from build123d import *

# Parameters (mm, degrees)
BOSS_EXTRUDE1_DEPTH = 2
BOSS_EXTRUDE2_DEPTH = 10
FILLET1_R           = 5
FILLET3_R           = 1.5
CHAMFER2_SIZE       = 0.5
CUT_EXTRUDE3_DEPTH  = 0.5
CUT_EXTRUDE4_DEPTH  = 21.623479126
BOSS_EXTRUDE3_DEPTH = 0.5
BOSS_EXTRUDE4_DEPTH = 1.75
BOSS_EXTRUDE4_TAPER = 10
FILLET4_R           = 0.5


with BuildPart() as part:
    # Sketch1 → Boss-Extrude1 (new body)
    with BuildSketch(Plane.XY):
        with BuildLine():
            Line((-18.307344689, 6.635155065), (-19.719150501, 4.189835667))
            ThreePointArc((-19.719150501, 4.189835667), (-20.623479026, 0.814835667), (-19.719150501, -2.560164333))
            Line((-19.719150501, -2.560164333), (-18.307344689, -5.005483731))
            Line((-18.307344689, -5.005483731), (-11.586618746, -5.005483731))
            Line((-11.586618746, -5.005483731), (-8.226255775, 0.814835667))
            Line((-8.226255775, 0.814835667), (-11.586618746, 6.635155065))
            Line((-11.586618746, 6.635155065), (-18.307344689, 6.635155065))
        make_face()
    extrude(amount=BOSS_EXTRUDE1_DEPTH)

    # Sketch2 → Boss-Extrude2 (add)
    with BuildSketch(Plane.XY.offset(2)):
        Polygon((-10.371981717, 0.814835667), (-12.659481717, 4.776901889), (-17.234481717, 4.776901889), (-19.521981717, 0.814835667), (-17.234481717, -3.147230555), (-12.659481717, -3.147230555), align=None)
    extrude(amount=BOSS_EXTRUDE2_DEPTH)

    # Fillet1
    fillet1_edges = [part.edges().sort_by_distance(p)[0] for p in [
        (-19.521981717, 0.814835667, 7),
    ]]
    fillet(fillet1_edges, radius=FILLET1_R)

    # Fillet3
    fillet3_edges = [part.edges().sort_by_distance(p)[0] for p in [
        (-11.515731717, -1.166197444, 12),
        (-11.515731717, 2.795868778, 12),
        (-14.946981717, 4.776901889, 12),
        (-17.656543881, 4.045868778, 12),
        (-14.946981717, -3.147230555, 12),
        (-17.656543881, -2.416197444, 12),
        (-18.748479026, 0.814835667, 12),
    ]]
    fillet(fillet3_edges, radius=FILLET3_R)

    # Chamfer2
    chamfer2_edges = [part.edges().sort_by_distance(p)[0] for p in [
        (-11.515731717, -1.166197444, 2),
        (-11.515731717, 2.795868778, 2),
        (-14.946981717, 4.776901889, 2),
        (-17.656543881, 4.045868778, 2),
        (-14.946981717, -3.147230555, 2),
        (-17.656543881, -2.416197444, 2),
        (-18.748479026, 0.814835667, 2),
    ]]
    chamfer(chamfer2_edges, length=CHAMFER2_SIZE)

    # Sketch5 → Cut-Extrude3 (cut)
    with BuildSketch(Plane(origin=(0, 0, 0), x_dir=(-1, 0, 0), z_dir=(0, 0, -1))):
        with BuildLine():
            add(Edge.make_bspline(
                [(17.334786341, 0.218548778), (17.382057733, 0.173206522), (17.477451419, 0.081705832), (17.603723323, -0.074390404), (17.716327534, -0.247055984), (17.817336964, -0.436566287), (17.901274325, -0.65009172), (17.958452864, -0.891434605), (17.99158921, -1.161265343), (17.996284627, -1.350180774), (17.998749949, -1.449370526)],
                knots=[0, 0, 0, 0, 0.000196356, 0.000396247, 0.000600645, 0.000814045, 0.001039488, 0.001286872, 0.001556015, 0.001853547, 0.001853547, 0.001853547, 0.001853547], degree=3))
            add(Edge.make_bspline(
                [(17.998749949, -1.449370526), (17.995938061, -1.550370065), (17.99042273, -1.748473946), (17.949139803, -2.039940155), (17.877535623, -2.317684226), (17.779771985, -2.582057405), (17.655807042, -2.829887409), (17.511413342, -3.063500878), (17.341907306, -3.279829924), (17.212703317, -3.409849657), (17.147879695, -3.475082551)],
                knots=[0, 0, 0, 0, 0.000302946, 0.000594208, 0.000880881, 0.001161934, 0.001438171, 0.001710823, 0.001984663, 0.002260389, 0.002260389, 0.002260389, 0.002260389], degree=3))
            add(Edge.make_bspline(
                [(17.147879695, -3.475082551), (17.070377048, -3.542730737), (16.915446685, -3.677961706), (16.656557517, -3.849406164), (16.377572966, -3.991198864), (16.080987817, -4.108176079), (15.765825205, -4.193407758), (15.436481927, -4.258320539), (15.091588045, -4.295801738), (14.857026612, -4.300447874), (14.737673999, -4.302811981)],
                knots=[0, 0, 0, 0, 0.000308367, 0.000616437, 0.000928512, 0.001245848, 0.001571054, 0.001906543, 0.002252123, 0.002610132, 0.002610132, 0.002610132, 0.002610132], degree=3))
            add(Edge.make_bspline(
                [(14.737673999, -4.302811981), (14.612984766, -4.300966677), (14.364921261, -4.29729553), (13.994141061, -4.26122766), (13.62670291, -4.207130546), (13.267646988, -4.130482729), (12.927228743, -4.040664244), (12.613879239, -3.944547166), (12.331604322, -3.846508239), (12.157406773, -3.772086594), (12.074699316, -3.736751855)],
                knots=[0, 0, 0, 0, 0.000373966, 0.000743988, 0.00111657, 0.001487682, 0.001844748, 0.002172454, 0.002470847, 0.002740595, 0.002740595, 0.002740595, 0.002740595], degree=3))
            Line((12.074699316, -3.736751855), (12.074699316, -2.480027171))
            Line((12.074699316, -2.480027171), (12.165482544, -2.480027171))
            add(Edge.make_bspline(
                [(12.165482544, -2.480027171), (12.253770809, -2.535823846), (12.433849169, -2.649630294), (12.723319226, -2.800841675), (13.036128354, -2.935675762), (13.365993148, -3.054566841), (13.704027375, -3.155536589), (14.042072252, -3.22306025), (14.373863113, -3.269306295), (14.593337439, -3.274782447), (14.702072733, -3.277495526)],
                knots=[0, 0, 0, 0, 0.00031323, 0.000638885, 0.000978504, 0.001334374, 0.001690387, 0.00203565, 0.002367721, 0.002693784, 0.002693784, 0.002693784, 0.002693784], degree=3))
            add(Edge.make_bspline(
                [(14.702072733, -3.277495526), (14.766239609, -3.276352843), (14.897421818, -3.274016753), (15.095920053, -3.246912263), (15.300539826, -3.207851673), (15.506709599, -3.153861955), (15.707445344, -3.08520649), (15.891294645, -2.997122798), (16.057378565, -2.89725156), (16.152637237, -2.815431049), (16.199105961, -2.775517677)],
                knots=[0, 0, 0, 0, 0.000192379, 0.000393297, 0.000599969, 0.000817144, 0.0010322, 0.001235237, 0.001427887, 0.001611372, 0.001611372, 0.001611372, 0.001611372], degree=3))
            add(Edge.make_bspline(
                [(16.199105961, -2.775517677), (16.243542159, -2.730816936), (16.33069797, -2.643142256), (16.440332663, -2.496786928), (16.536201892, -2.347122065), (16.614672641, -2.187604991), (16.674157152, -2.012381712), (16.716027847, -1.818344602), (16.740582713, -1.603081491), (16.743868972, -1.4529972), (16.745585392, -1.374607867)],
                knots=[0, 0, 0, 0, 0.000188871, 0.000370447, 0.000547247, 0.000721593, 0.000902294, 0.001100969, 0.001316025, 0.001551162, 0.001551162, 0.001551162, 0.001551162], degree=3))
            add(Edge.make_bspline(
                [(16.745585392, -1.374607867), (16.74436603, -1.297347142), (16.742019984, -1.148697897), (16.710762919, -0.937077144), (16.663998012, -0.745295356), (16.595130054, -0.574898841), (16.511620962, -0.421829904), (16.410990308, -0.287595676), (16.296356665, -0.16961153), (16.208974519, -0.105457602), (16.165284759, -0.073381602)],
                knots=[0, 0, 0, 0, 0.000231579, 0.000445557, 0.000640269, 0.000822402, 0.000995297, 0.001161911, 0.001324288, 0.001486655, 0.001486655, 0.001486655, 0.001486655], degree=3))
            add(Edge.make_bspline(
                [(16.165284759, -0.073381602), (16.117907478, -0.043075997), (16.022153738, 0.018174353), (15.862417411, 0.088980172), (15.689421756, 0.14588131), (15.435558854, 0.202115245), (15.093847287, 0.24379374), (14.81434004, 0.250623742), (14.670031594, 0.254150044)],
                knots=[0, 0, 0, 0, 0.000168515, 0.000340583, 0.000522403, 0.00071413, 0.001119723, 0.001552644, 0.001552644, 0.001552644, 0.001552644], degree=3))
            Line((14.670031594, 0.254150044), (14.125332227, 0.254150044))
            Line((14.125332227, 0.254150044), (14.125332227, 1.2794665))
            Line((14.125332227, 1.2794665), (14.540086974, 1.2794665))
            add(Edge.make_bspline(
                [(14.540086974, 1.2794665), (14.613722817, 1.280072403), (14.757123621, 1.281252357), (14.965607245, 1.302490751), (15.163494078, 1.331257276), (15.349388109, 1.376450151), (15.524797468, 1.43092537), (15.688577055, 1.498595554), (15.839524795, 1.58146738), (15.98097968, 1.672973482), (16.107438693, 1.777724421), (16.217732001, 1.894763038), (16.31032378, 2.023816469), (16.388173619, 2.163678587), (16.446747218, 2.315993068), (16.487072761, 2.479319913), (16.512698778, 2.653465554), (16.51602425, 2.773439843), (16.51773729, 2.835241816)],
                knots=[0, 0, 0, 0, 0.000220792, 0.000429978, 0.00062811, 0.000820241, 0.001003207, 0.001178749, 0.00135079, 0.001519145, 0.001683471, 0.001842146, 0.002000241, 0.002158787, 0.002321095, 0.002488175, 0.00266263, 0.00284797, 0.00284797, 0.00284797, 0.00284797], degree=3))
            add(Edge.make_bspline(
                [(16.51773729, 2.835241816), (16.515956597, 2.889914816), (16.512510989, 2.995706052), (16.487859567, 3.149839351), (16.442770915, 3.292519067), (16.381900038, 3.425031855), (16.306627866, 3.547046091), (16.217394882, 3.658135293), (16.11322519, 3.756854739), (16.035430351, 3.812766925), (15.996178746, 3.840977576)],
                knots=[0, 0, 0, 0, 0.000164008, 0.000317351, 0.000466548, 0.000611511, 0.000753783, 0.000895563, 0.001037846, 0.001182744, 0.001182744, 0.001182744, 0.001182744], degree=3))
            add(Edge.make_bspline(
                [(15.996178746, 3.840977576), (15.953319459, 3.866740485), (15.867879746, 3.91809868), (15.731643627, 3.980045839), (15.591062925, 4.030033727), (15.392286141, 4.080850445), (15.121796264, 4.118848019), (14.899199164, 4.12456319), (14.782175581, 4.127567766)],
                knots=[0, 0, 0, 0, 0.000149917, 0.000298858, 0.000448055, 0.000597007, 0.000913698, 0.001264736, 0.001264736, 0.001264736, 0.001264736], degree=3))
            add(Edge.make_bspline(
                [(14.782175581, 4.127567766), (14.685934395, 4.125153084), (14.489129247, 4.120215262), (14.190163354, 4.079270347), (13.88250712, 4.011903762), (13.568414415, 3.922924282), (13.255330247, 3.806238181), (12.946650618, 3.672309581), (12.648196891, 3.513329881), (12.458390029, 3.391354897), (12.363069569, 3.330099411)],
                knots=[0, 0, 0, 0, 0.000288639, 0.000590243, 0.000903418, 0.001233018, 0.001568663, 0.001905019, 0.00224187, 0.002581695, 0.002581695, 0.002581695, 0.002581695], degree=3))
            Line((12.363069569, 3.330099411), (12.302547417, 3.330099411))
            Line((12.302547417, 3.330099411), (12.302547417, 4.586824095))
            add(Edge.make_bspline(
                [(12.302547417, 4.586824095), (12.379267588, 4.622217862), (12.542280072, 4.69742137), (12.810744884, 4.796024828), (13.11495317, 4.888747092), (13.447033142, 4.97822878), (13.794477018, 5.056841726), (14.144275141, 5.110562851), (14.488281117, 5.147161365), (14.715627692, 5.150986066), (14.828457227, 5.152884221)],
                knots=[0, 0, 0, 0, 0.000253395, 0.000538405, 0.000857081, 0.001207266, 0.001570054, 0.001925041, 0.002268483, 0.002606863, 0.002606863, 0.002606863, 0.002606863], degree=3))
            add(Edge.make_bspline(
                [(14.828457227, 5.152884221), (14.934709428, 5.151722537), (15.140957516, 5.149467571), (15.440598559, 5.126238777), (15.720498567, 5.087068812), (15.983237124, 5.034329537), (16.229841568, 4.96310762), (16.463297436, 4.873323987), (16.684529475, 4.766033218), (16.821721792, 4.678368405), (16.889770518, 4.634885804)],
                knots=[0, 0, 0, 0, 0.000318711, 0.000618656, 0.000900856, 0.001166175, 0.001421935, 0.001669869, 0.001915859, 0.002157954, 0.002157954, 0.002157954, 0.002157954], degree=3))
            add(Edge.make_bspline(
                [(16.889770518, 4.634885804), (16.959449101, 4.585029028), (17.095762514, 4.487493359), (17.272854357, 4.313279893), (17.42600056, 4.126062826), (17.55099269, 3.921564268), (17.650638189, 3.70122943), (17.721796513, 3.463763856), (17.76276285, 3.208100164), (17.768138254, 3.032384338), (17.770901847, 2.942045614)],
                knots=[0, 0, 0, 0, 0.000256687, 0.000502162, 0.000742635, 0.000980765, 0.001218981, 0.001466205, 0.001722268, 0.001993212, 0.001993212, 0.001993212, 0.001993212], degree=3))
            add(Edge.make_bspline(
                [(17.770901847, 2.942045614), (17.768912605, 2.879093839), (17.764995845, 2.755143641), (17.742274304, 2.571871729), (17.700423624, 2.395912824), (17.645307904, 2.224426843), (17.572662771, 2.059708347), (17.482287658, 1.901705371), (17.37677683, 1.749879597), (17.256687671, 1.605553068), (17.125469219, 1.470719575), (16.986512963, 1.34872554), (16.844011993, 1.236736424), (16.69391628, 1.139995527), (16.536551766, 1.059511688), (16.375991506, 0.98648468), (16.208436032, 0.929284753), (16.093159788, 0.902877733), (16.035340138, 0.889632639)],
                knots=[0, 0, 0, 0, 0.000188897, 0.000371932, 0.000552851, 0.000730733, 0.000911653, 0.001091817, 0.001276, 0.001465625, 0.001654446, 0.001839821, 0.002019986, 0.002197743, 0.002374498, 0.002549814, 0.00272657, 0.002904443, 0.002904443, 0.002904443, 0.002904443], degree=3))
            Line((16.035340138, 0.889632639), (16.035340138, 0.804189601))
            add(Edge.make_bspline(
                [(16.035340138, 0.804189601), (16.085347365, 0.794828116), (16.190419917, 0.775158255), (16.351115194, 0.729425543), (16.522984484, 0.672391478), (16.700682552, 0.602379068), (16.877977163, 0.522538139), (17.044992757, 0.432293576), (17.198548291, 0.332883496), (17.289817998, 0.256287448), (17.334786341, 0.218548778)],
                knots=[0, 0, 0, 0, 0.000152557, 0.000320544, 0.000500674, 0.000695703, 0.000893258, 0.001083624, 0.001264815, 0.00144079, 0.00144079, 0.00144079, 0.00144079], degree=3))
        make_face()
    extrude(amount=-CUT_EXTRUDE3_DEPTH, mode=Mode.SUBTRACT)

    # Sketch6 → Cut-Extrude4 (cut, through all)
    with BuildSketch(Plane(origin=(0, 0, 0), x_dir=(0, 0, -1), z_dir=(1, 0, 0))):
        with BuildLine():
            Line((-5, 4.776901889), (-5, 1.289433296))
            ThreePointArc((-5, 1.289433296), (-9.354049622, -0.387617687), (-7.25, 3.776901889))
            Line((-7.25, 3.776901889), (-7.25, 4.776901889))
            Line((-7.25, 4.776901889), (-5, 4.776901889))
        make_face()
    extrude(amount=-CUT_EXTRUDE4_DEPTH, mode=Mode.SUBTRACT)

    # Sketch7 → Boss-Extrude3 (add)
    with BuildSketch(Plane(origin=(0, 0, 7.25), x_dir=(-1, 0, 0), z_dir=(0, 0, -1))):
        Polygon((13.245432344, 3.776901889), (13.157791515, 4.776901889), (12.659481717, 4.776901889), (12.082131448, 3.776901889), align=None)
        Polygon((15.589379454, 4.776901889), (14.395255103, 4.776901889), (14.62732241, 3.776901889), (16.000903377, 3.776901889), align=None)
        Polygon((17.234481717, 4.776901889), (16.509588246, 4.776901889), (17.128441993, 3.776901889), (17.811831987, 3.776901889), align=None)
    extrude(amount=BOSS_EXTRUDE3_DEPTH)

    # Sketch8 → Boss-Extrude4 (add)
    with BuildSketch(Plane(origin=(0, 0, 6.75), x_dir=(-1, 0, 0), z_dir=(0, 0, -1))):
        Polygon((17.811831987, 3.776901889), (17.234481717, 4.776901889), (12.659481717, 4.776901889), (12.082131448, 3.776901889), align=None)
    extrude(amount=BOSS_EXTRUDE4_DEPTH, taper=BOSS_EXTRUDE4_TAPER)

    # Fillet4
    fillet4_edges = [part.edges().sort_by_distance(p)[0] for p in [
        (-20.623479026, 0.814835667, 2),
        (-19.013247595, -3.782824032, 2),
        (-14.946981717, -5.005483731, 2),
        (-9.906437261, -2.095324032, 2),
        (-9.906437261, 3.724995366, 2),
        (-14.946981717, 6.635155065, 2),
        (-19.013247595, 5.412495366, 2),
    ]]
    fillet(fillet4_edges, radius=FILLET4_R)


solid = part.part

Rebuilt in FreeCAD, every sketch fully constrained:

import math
import FreeCAD as App
import Part
import Sketcher
from FreeCAD import Vector
Q = App.Units.Quantity


def edges_at(feature, points):
    """Names of the edges that pass closest to the given points."""
    edges = feature.Shape.Edges
    near = lambda p: min(range(len(edges)), key=lambda i: edges[i].distToShape(Part.Vertex(*p))[0])
    return sorted({f"Edge{near(p) + 1}" for p in points})

doc = App.newDocument("Part")
params = doc.addObject("Spreadsheet::Sheet", "Params")
for row, (alias, value) in enumerate([
    ("sketch1_radius", "6.75 mm"),
    ("pad1_length", "2 mm"),
    ("pad2_length", "10 mm"),
    ("fillet_radius", "5 mm"),
    ("fillet2_radius", "1.5 mm"),
    ("chamfer_size", "0.5 mm"),
    ("pocket1_length", "0.5 mm"),
    ("sketch4_radius", "2.5 mm"),
    ("sketch4_width", "1 mm"),
    ("sketch4_height", "2.25 mm"),
    ("pad3_length", "0.5 mm"),
    ("pad4_length", "1.75 mm"),
    ("pad4_taper", "-10 deg"),
    ("fillet3_radius", "0.5 mm"),
], start=1):
    params.set(f"A{row}", alias)
    params.set(f"B{row}", "=" + value)
    params.setAlias(f"B{row}", alias)

body = doc.addObject("PartDesign::Body", "Body")

# Sketch on XY plane
sketch1 = body.newObject("Sketcher::SketchObject", "Sketch")
sketch1.AttachmentSupport = (doc.getObject("XY_Plane"), [""])
sketch1.MapMode = "FlatFace"
sketch1.addGeometry(Part.LineSegment(Vector(-18.307345, 6.635155, 0), Vector(-19.719151, 4.189836, 0)), False)
sketch1.addGeometry(Part.ArcOfCircle(Part.Circle(Vector(-13.873479, 0.814836, 0), Vector(0, 0, 1), 6.75), math.radians(150), math.radians(210)), False)
sketch1.addGeometry(Part.LineSegment(Vector(-19.719151, -2.560164, 0), Vector(-18.307345, -5.005484, 0)), False)
sketch1.addGeometry(Part.LineSegment(Vector(-18.307345, -5.005484, 0), Vector(-11.586619, -5.005484, 0)), False)
sketch1.addGeometry(Part.LineSegment(Vector(-11.586619, -5.005484, 0), Vector(-8.226256, 0.814836, 0)), False)
sketch1.addGeometry(Part.LineSegment(Vector(-8.226256, 0.814836, 0), Vector(-11.586619, 6.635155, 0)), False)
sketch1.addGeometry(Part.LineSegment(Vector(-11.586619, 6.635155, 0), Vector(-18.307345, 6.635155, 0)), False)
sketch1.addConstraint(Sketcher.Constraint("Tangent", 0, 2, 1, 1))
sketch1.addConstraint(Sketcher.Constraint("Tangent", 1, 2, 2, 1))
sketch1.addConstraint(Sketcher.Constraint("Coincident", 2, 2, 3, 1))
sketch1.addConstraint(Sketcher.Constraint("Coincident", 3, 2, 4, 1))
sketch1.addConstraint(Sketcher.Constraint("Coincident", 4, 2, 5, 1))
sketch1.addConstraint(Sketcher.Constraint("Coincident", 5, 2, 6, 1))
sketch1.addConstraint(Sketcher.Constraint("Coincident", 6, 2, 0, 1))
sketch1.addConstraint(Sketcher.Constraint("Horizontal", 3))
sketch1.addConstraint(Sketcher.Constraint("Horizontal", 6))
sketch1.addConstraint(Sketcher.Constraint("Parallel", 0, 4))
sketch1.addConstraint(Sketcher.Constraint("Parallel", 2, 5))
sketch1.addConstraint(Sketcher.Constraint("Horizontal", 1, 3, 4, 2))
sketch1.addConstraint(Sketcher.Constraint("Vertical", 0, 2, 1, 2))
sketch1.addConstraint(Sketcher.Constraint("Vertical", 3, 2, 5, 2))
sketch1.addConstraint(Sketcher.Constraint("Angle", 0, Q("-120 deg")))
sketch1.addConstraint(Sketcher.Constraint("Radius", 1, 6.75))
sketch1.addConstraint(Sketcher.Constraint("Distance", 0, 2.823612))
sketch1.addConstraint(Sketcher.Constraint("DistanceX", 3, 1, 3, 2, 6.720726))
sketch1.addConstraint(Sketcher.Constraint("DistanceX", 1, 3, -1, 1, 13.873479))
sketch1.addConstraint(Sketcher.Constraint("DistanceY", -1, 1, 1, 3, 0.814836))
sketch1.setExpression("Constraints[15]", "Params.sketch1_radius")
pad1 = body.newObject("PartDesign::Pad", "Pad")
pad1.Profile = sketch1
pad1.setExpression("Length", "Params.pad1_length")

# Sketch on XY plane
sketch2 = body.newObject("Sketcher::SketchObject", "Sketch001")
sketch2.AttachmentSupport = (doc.getObject("XY_Plane"), [""])
sketch2.MapMode = "FlatFace"
sketch2.AttachmentOffset = App.Placement(Vector(0, 0, 2), App.Rotation())
sketch2.addGeometry(Part.LineSegment(Vector(-10.371982, 0.814836, 0), Vector(-12.659482, 4.776902, 0)), False)
sketch2.addGeometry(Part.LineSegment(Vector(-12.659482, 4.776902, 0), Vector(-17.234482, 4.776902, 0)), False)
sketch2.addGeometry(Part.LineSegment(Vector(-17.234482, 4.776902, 0), Vector(-19.521982, 0.814836, 0)), False)
sketch2.addGeometry(Part.LineSegment(Vector(-19.521982, 0.814836, 0), Vector(-17.234482, -3.147231, 0)), False)
sketch2.addGeometry(Part.LineSegment(Vector(-17.234482, -3.147231, 0), Vector(-12.659482, -3.147231, 0)), False)
sketch2.addGeometry(Part.LineSegment(Vector(-12.659482, -3.147231, 0), Vector(-10.371982, 0.814836, 0)), False)
sketch2.addConstraint(Sketcher.Constraint("Coincident", 0, 2, 1, 1))
sketch2.addConstraint(Sketcher.Constraint("Coincident", 1, 2, 2, 1))
sketch2.addConstraint(Sketcher.Constraint("Coincident", 2, 2, 3, 1))
sketch2.addConstraint(Sketcher.Constraint("Coincident", 3, 2, 4, 1))
sketch2.addConstraint(Sketcher.Constraint("Coincident", 4, 2, 5, 1))
sketch2.addConstraint(Sketcher.Constraint("Coincident", 5, 2, 0, 1))
sketch2.addConstraint(Sketcher.Constraint("Horizontal", 1))
sketch2.addConstraint(Sketcher.Constraint("Horizontal", 4))
sketch2.addConstraint(Sketcher.Constraint("Parallel", 0, 3))
sketch2.addConstraint(Sketcher.Constraint("Parallel", 2, 5))
sketch2.addConstraint(Sketcher.Constraint("Horizontal", 2, 2, 5, 2))
sketch2.addConstraint(Sketcher.Constraint("Vertical", 1, 2, 3, 2))
sketch2.addConstraint(Sketcher.Constraint("Vertical", 0, 2, 4, 2))
sketch2.addConstraint(Sketcher.Constraint("Angle", 0, Q("120 deg")))
sketch2.addConstraint(Sketcher.Constraint("DistanceX", 1, 2, 1, 1, 4.575))
sketch2.addConstraint(Sketcher.Constraint("DistanceX", 2, 2, 5, 2, 9.15))
sketch2.addConstraint(Sketcher.Constraint("DistanceY", -1, 1, 0, 2, 4.776902))
sketch2.addConstraint(Sketcher.Constraint("DistanceX", 0, 2, -1, 1, 12.659482))
pad2 = body.newObject("PartDesign::Pad", "Pad001")
pad2.Profile = sketch2
pad2.setExpression("Length", "Params.pad2_length")
doc.recompute()

fillet = body.newObject("PartDesign::Fillet", "Fillet")
fillet.Base = (pad2, edges_at(pad2, [(-19.522, 0.815, 7)]))
fillet.setExpression("Radius", "Params.fillet_radius")
doc.recompute()

fillet2 = body.newObject("PartDesign::Fillet", "Fillet001")
fillet2.Base = (fillet, edges_at(fillet, [
    (-11.516, -1.166, 12),
    (-11.516, 2.796, 12),
    (-14.947, 4.777, 12),
    (-17.657, 4.046, 12),
    (-14.947, -3.147, 12),
    (-17.657, -2.416, 12),
    (-18.748, 0.815, 12),
]))
fillet2.setExpression("Radius", "Params.fillet2_radius")
doc.recompute()

chamfer = body.newObject("PartDesign::Chamfer", "Chamfer")
chamfer.Base = (fillet2, edges_at(fillet2, [
    (-11.516, -1.166, 2),
    (-11.516, 2.796, 2),
    (-14.947, 4.777, 2),
    (-17.657, 4.046, 2),
    (-14.947, -3.147, 2),
    (-17.657, -2.416, 2),
    (-18.748, 0.815, 2),
]))
chamfer.setExpression("Size", "Params.chamfer_size")

# Sketch on XY plane
sketch3 = body.newObject("Sketcher::SketchObject", "Sketch002")
sketch3.AttachmentSupport = (doc.getObject("XY_Plane"), [""])
sketch3.MapMode = "FlatFace"
sketch3.addGeometry(Part.BSplineCurve([Vector(-17.334786, 0.218549, 0), Vector(-17.382058, 0.173207, 0), Vector(-17.477451, 0.081706, 0), Vector(-17.603723, -0.07439, 0), Vector(-17.716328, -0.247056, 0), Vector(-17.817337, -0.436566, 0), Vector(-17.901274, -0.650092, 0), Vector(-17.958453, -0.891435, 0), Vector(-17.991589, -1.161265, 0), Vector(-17.996285, -1.350181, 0), Vector(-17.99875, -1.449371, 0)], [4, 1, 1, 1, 1, 1, 1, 1, 4], [0, 0.000196356, 0.000396247, 0.000600645, 0.000814045, 0.001039488, 0.001286872, 0.001556015, 0.001853547], False, 3, [1, 1, 1, 1, 1, 1, 1, 1, 1, 1, 1], False), False)
sketch3.addGeometry(Part.BSplineCurve([Vector(-16.03534, 0.80419, 0), Vector(-16.085347, 0.794828, 0), Vector(-16.19042, 0.775158, 0), Vector(-16.351115, 0.729426, 0), Vector(-16.522984, 0.672391, 0), Vector(-16.700683, 0.602379, 0), Vector(-16.877977, 0.522538, 0), Vector(-17.044993, 0.432294, 0), Vector(-17.198548, 0.332883, 0), Vector(-17.289818, 0.256287, 0), Vector(-17.334786, 0.218549, 0)], [4, 1, 1, 1, 1, 1, 1, 1, 4], [0, 0.000152557, 0.000320544, 0.000500674, 0.000695703, 0.000893258, 0.001083624, 0.001264815, 0.00144079], False, 3, [1, 1, 1, 1, 1, 1, 1, 1, 1, 1, 1], False), False)
sketch3.addGeometry(Part.LineSegment(Vector(-16.03534, 0.80419, 0), Vector(-16.03534, 0.889633, 0)), False)
sketch3.addGeometry(Part.BSplineCurve([Vector(-17.770902, 2.942046, 0), Vector(-17.768913, 2.879094, 0), Vector(-17.764996, 2.755144, 0), Vector(-17.742274, 2.571872, 0), Vector(-17.700424, 2.395913, 0), Vector(-17.645308, 2.224427, 0), Vector(-17.572663, 2.059708, 0), Vector(-17.482288, 1.901705, 0), Vector(-17.376777, 1.74988, 0), Vector(-17.256688, 1.605553, 0), Vector(-17.125469, 1.47072, 0), Vector(-16.986513, 1.348726, 0), Vector(-16.844012, 1.236736, 0), Vector(-16.693916, 1.139996, 0), Vector(-16.536552, 1.059512, 0), Vector(-16.375992, 0.986485, 0), Vector(-16.208436, 0.929285, 0), Vector(-16.09316, 0.902878, 0), Vector(-16.03534, 0.889633, 0)], [4, 1, 1, 1, 1, 1, 1, 1, 1, 1, 1, 1, 1, 1, 1, 1, 4], [0, 0.000188897, 0.000371932, 0.000552851, 0.000730733, 0.000911653, 0.001091817, 0.001276, 0.001465625, 0.001654446, 0.001839821, 0.002019986, 0.002197743, 0.002374498, 0.002549814, 0.00272657, 0.002904443], False, 3, [1, 1, 1, 1, 1, 1, 1, 1, 1, 1, 1, 1, 1, 1, 1, 1, 1, 1, 1], False), False)
sketch3.addGeometry(Part.BSplineCurve([Vector(-16.889771, 4.634886, 0), Vector(-16.959449, 4.585029, 0), Vector(-17.095763, 4.487493, 0), Vector(-17.272854, 4.31328, 0), Vector(-17.426001, 4.126063, 0), Vector(-17.550993, 3.921564, 0), Vector(-17.650638, 3.701229, 0), Vector(-17.721797, 3.463764, 0), Vector(-17.762763, 3.2081, 0), Vector(-17.768138, 3.032384, 0), Vector(-17.770902, 2.942046, 0)], [4, 1, 1, 1, 1, 1, 1, 1, 4], [0, 0.000256687, 0.000502162, 0.000742635, 0.000980765, 0.001218981, 0.001466205, 0.001722268, 0.001993212], False, 3, [1, 1, 1, 1, 1, 1, 1, 1, 1, 1, 1], False), False)
sketch3.addGeometry(Part.BSplineCurve([Vector(-14.828457, 5.152884, 0), Vector(-14.934709, 5.151723, 0), Vector(-15.140958, 5.149468, 0), Vector(-15.440599, 5.126239, 0), Vector(-15.720499, 5.087069, 0), Vector(-15.983237, 5.03433, 0), Vector(-16.229842, 4.963108, 0), Vector(-16.463297, 4.873324, 0), Vector(-16.684529, 4.766033, 0), Vector(-16.821722, 4.678368, 0), Vector(-16.889771, 4.634886, 0)], [4, 1, 1, 1, 1, 1, 1, 1, 4], [0, 0.000318711, 0.000618656, 0.000900856, 0.001166175, 0.001421935, 0.001669869, 0.001915859, 0.002157954], False, 3, [1, 1, 1, 1, 1, 1, 1, 1, 1, 1, 1], False), False)
sketch3.addGeometry(Part.BSplineCurve([Vector(-12.302547, 4.586824, 0), Vector(-12.379268, 4.622218, 0), Vector(-12.54228, 4.697421, 0), Vector(-12.810745, 4.796025, 0), Vector(-13.114953, 4.888747, 0), Vector(-13.447033, 4.978229, 0), Vector(-13.794477, 5.056842, 0), Vector(-14.144275, 5.110563, 0), Vector(-14.488281, 5.147161, 0), Vector(-14.715628, 5.150986, 0), Vector(-14.828457, 5.152884, 0)], [4, 1, 1, 1, 1, 1, 1, 1, 4], [0, 0.000253395, 0.000538405, 0.000857081, 0.001207266, 0.001570054, 0.001925041, 0.002268483, 0.002606863], False, 3, [1, 1, 1, 1, 1, 1, 1, 1, 1, 1, 1], False), False)
sketch3.addGeometry(Part.LineSegment(Vector(-12.302547, 4.586824, 0), Vector(-12.302547, 3.330099, 0)), False)
sketch3.addGeometry(Part.LineSegment(Vector(-12.302547, 3.330099, 0), Vector(-12.36307, 3.330099, 0)), False)
sketch3.addGeometry(Part.BSplineCurve([Vector(-14.782176, 4.127568, 0), Vector(-14.685934, 4.125153, 0), Vector(-14.489129, 4.120215, 0), Vector(-14.190163, 4.07927, 0), Vector(-13.882507, 4.011904, 0), Vector(-13.568414, 3.922924, 0), Vector(-13.25533, 3.806238, 0), Vector(-12.946651, 3.67231, 0), Vector(-12.648197, 3.51333, 0), Vector(-12.45839, 3.391355, 0), Vector(-12.36307, 3.330099, 0)], [4, 1, 1, 1, 1, 1, 1, 1, 4], [0, 0.000288639, 0.000590243, 0.000903418, 0.001233018, 0.001568663, 0.001905019, 0.00224187, 0.002581695], False, 3, [1, 1, 1, 1, 1, 1, 1, 1, 1, 1, 1], False), False)
sketch3.addGeometry(Part.BSplineCurve([Vector(-15.996179, 3.840978, 0), Vector(-15.953319, 3.86674, 0), Vector(-15.86788, 3.918099, 0), Vector(-15.731644, 3.980046, 0), Vector(-15.591063, 4.030034, 0), Vector(-15.392286, 4.08085, 0), Vector(-15.121796, 4.118848, 0), Vector(-14.899199, 4.124563, 0), Vector(-14.782176, 4.127568, 0)], [4, 1, 1, 1, 1, 1, 4], [0, 0.000149917, 0.000298858, 0.000448055, 0.000597007, 0.000913698, 0.001264736], False, 3, [1, 1, 1, 1, 1, 1, 1, 1, 1], False), False)
sketch3.addGeometry(Part.BSplineCurve([Vector(-16.517737, 2.835242, 0), Vector(-16.515957, 2.889915, 0), Vector(-16.512511, 2.995706, 0), Vector(-16.48786, 3.149839, 0), Vector(-16.442771, 3.292519, 0), Vector(-16.3819, 3.425032, 0), Vector(-16.306628, 3.547046, 0), Vector(-16.217395, 3.658135, 0), Vector(-16.113225, 3.756855, 0), Vector(-16.03543, 3.812767, 0), Vector(-15.996179, 3.840978, 0)], [4, 1, 1, 1, 1, 1, 1, 1, 4], [0, 0.000164008, 0.000317351, 0.000466548, 0.000611511, 0.000753783, 0.000895563, 0.001037846, 0.001182744], False, 3, [1, 1, 1, 1, 1, 1, 1, 1, 1, 1, 1], False), False)
sketch3.addGeometry(Part.BSplineCurve([Vector(-14.540087, 1.279467, 0), Vector(-14.613723, 1.280072, 0), Vector(-14.757124, 1.281252, 0), Vector(-14.965607, 1.302491, 0), Vector(-15.163494, 1.331257, 0), Vector(-15.349388, 1.37645, 0), Vector(-15.524797, 1.430925, 0), Vector(-15.688577, 1.498596, 0), Vector(-15.839525, 1.581467, 0), Vector(-15.98098, 1.672973, 0), Vector(-16.107439, 1.777724, 0), Vector(-16.217732, 1.894763, 0), Vector(-16.310324, 2.023816, 0), Vector(-16.388174, 2.163679, 0), Vector(-16.446747, 2.315993, 0), Vector(-16.487073, 2.47932, 0), Vector(-16.512699, 2.653466, 0), Vector(-16.516024, 2.77344, 0), Vector(-16.517737, 2.835242, 0)], [4, 1, 1, 1, 1, 1, 1, 1, 1, 1, 1, 1, 1, 1, 1, 1, 4], [0, 0.000220792, 0.000429978, 0.00062811, 0.000820241, 0.001003207, 0.001178749, 0.00135079, 0.001519145, 0.001683471, 0.001842146, 0.002000241, 0.002158787, 0.002321095, 0.002488175, 0.00266263, 0.00284797], False, 3, [1, 1, 1, 1, 1, 1, 1, 1, 1, 1, 1, 1, 1, 1, 1, 1, 1, 1, 1], False), False)
sketch3.addGeometry(Part.LineSegment(Vector(-14.540087, 1.279467, 0), Vector(-14.125332, 1.279467, 0)), False)
sketch3.addGeometry(Part.LineSegment(Vector(-14.125332, 1.279467, 0), Vector(-14.125332, 0.25415, 0)), False)
sketch3.addGeometry(Part.LineSegment(Vector(-14.125332, 0.25415, 0), Vector(-14.670032, 0.25415, 0)), False)
sketch3.addGeometry(Part.BSplineCurve([Vector(-16.165285, -0.073382, 0), Vector(-16.117907, -0.043076, 0), Vector(-16.022154, 0.018174, 0), Vector(-15.862417, 0.08898, 0), Vector(-15.689422, 0.145881, 0), Vector(-15.435559, 0.202115, 0), Vector(-15.093847, 0.243794, 0), Vector(-14.81434, 0.250624, 0), Vector(-14.670032, 0.25415, 0)], [4, 1, 1, 1, 1, 1, 4], [0, 0.000168515, 0.000340583, 0.000522403, 0.00071413, 0.001119723, 0.001552644], False, 3, [1, 1, 1, 1, 1, 1, 1, 1, 1], False), False)
sketch3.addGeometry(Part.BSplineCurve([Vector(-16.745585, -1.374608, 0), Vector(-16.744366, -1.297347, 0), Vector(-16.74202, -1.148698, 0), Vector(-16.710763, -0.937077, 0), Vector(-16.663998, -0.745295, 0), Vector(-16.59513, -0.574899, 0), Vector(-16.511621, -0.42183, 0), Vector(-16.41099, -0.287596, 0), Vector(-16.296357, -0.169612, 0), Vector(-16.208975, -0.105458, 0), Vector(-16.165285, -0.073382, 0)], [4, 1, 1, 1, 1, 1, 1, 1, 4], [0, 0.000231579, 0.000445557, 0.000640269, 0.000822402, 0.000995297, 0.001161911, 0.001324288, 0.001486655], False, 3, [1, 1, 1, 1, 1, 1, 1, 1, 1, 1, 1], False), False)
sketch3.addGeometry(Part.BSplineCurve([Vector(-16.199106, -2.775518, 0), Vector(-16.243542, -2.730817, 0), Vector(-16.330698, -2.643142, 0), Vector(-16.440333, -2.496787, 0), Vector(-16.536202, -2.347122, 0), Vector(-16.614673, -2.187605, 0), Vector(-16.674157, -2.012382, 0), Vector(-16.716028, -1.818345, 0), Vector(-16.740583, -1.603081, 0), Vector(-16.743869, -1.452997, 0), Vector(-16.745585, -1.374608, 0)], [4, 1, 1, 1, 1, 1, 1, 1, 4], [0, 0.000188871, 0.000370447, 0.000547247, 0.000721593, 0.000902294, 0.001100969, 0.001316025, 0.001551162], False, 3, [1, 1, 1, 1, 1, 1, 1, 1, 1, 1, 1], False), False)
sketch3.addGeometry(Part.BSplineCurve([Vector(-14.702073, -3.277496, 0), Vector(-14.76624, -3.276353, 0), Vector(-14.897422, -3.274017, 0), Vector(-15.09592, -3.246912, 0), Vector(-15.30054, -3.207852, 0), Vector(-15.50671, -3.153862, 0), Vector(-15.707445, -3.085206, 0), Vector(-15.891295, -2.997123, 0), Vector(-16.057379, -2.897252, 0), Vector(-16.152637, -2.815431, 0), Vector(-16.199106, -2.775518, 0)], [4, 1, 1, 1, 1, 1, 1, 1, 4], [0, 0.000192379, 0.000393297, 0.000599969, 0.000817144, 0.0010322, 0.001235237, 0.001427887, 0.001611372], False, 3, [1, 1, 1, 1, 1, 1, 1, 1, 1, 1, 1], False), False)
sketch3.addGeometry(Part.BSplineCurve([Vector(-12.165483, -2.480027, 0), Vector(-12.253771, -2.535824, 0), Vector(-12.433849, -2.64963, 0), Vector(-12.723319, -2.800842, 0), Vector(-13.036128, -2.935676, 0), Vector(-13.365993, -3.054567, 0), Vector(-13.704027, -3.155537, 0), Vector(-14.042072, -3.22306, 0), Vector(-14.373863, -3.269306, 0), Vector(-14.593337, -3.274782, 0), Vector(-14.702073, -3.277496, 0)], [4, 1, 1, 1, 1, 1, 1, 1, 4], [0, 0.00031323, 0.000638885, 0.000978504, 0.001334374, 0.001690387, 0.00203565, 0.002367721, 0.002693784], False, 3, [1, 1, 1, 1, 1, 1, 1, 1, 1, 1, 1], False), False)
sketch3.addGeometry(Part.LineSegment(Vector(-12.165483, -2.480027, 0), Vector(-12.074699, -2.480027, 0)), False)
sketch3.addGeometry(Part.LineSegment(Vector(-12.074699, -2.480027, 0), Vector(-12.074699, -3.736752, 0)), False)
sketch3.addGeometry(Part.BSplineCurve([Vector(-14.737674, -4.302812, 0), Vector(-14.612985, -4.300967, 0), Vector(-14.364921, -4.297296, 0), Vector(-13.994141, -4.261228, 0), Vector(-13.626703, -4.207131, 0), Vector(-13.267647, -4.130483, 0), Vector(-12.927229, -4.040664, 0), Vector(-12.613879, -3.944547, 0), Vector(-12.331604, -3.846508, 0), Vector(-12.157407, -3.772087, 0), Vector(-12.074699, -3.736752, 0)], [4, 1, 1, 1, 1, 1, 1, 1, 4], [0, 0.000373966, 0.000743988, 0.00111657, 0.001487682, 0.001844748, 0.002172454, 0.002470847, 0.002740595], False, 3, [1, 1, 1, 1, 1, 1, 1, 1, 1, 1, 1], False), False)
sketch3.addGeometry(Part.BSplineCurve([Vector(-17.14788, -3.475083, 0), Vector(-17.070377, -3.542731, 0), Vector(-16.915447, -3.677962, 0), Vector(-16.656558, -3.849406, 0), Vector(-16.377573, -3.991199, 0), Vector(-16.080988, -4.108176, 0), Vector(-15.765825, -4.193408, 0), Vector(-15.436482, -4.258321, 0), Vector(-15.091588, -4.295802, 0), Vector(-14.857027, -4.300448, 0), Vector(-14.737674, -4.302812, 0)], [4, 1, 1, 1, 1, 1, 1, 1, 4], [0, 0.000308367, 0.000616437, 0.000928512, 0.001245848, 0.001571054, 0.001906543, 0.002252123, 0.002610132], False, 3, [1, 1, 1, 1, 1, 1, 1, 1, 1, 1, 1], False), False)
sketch3.addGeometry(Part.BSplineCurve([Vector(-17.99875, -1.449371, 0), Vector(-17.995938, -1.55037, 0), Vector(-17.990423, -1.748474, 0), Vector(-17.94914, -2.03994, 0), Vector(-17.877536, -2.317684, 0), Vector(-17.779772, -2.582057, 0), Vector(-17.655807, -2.829887, 0), Vector(-17.511413, -3.063501, 0), Vector(-17.341907, -3.27983, 0), Vector(-17.212703, -3.40985, 0), Vector(-17.14788, -3.475083, 0)], [4, 1, 1, 1, 1, 1, 1, 1, 4], [0, 0.000302946, 0.000594208, 0.000880881, 0.001161934, 0.001438171, 0.001710823, 0.001984663, 0.002260389], False, 3, [1, 1, 1, 1, 1, 1, 1, 1, 1, 1, 1], False), False)
sketch3.addConstraint(Sketcher.Constraint("Block", 0))
sketch3.addConstraint(Sketcher.Constraint("Block", 1))
sketch3.addConstraint(Sketcher.Constraint("Block", 3))
sketch3.addConstraint(Sketcher.Constraint("Block", 4))
sketch3.addConstraint(Sketcher.Constraint("Block", 5))
sketch3.addConstraint(Sketcher.Constraint("Block", 6))
sketch3.addConstraint(Sketcher.Constraint("Block", 9))
sketch3.addConstraint(Sketcher.Constraint("Block", 10))
sketch3.addConstraint(Sketcher.Constraint("Block", 11))
sketch3.addConstraint(Sketcher.Constraint("Block", 12))
sketch3.addConstraint(Sketcher.Constraint("Block", 16))
sketch3.addConstraint(Sketcher.Constraint("Block", 17))
sketch3.addConstraint(Sketcher.Constraint("Block", 18))
sketch3.addConstraint(Sketcher.Constraint("Block", 19))
sketch3.addConstraint(Sketcher.Constraint("Block", 20))
sketch3.addConstraint(Sketcher.Constraint("Block", 23))
sketch3.addConstraint(Sketcher.Constraint("Block", 24))
sketch3.addConstraint(Sketcher.Constraint("Block", 25))
sketch3.addConstraint(Sketcher.Constraint("Coincident", 1, 1, 2, 1))
sketch3.addConstraint(Sketcher.Constraint("Coincident", 2, 2, 3, 2))
sketch3.addConstraint(Sketcher.Constraint("Coincident", 6, 1, 7, 1))
sketch3.addConstraint(Sketcher.Constraint("Coincident", 7, 2, 8, 1))
sketch3.addConstraint(Sketcher.Constraint("Coincident", 8, 2, 9, 2))
sketch3.addConstraint(Sketcher.Constraint("Coincident", 12, 1, 13, 1))
sketch3.addConstraint(Sketcher.Constraint("Coincident", 13, 2, 14, 1))
sketch3.addConstraint(Sketcher.Constraint("Coincident", 14, 2, 15, 1))
sketch3.addConstraint(Sketcher.Constraint("Coincident", 15, 2, 16, 2))
sketch3.addConstraint(Sketcher.Constraint("Coincident", 20, 1, 21, 1))
sketch3.addConstraint(Sketcher.Constraint("Coincident", 21, 2, 22, 1))
sketch3.addConstraint(Sketcher.Constraint("Coincident", 22, 2, 23, 2))
sketch3.addConstraint(Sketcher.Constraint("Vertical", 7))
sketch3.addConstraint(Sketcher.Constraint("Horizontal", 8))
sketch3.addConstraint(Sketcher.Constraint("Horizontal", 13))
sketch3.addConstraint(Sketcher.Constraint("Vertical", 14))
sketch3.addConstraint(Sketcher.Constraint("Horizontal", 15))
sketch3.addConstraint(Sketcher.Constraint("Horizontal", 21))
sketch3.addConstraint(Sketcher.Constraint("Vertical", 22))
sketch3.addConstraint(Sketcher.Constraint("DistanceX", 15, 2, 15, 1, 0.544699))
pocket1 = body.newObject("PartDesign::Pocket", "Pocket")
pocket1.Profile = sketch3
pocket1.setExpression("Length", "Params.pocket1_length")
pocket1.Reversed = True

# Sketch on YZ plane
sketch4 = body.newObject("Sketcher::SketchObject", "Sketch003")
sketch4.AttachmentSupport = (doc.getObject("YZ_Plane"), [""])
sketch4.MapMode = "FlatFace"
sketch4.addGeometry(Part.LineSegment(Vector(1.289433, 5, 0), Vector(4.776902, 5, 0)), False)
sketch4.addGeometry(Part.LineSegment(Vector(4.776902, 5, 0), Vector(4.776902, 7.25, 0)), False)
sketch4.addGeometry(Part.LineSegment(Vector(4.776902, 7.25, 0), Vector(3.776902, 7.25, 0)), False)
sketch4.addGeometry(Part.ArcOfCircle(Part.Circle(Vector(1.289433, 7.5, 0), Vector(0, 0, 1), 2.5), math.radians(-5.73917), math.radians(270)), False)
sketch4.addConstraint(Sketcher.Constraint("Coincident", 0, 2, 1, 1))
sketch4.addConstraint(Sketcher.Constraint("Coincident", 1, 2, 2, 1))
sketch4.addConstraint(Sketcher.Constraint("Coincident", 2, 2, 3, 1))
sketch4.addConstraint(Sketcher.Constraint("Tangent", 3, 2, 0, 1))
sketch4.addConstraint(Sketcher.Constraint("Horizontal", 0))
sketch4.addConstraint(Sketcher.Constraint("Vertical", 1))
sketch4.addConstraint(Sketcher.Constraint("Horizontal", 2))
sketch4.addConstraint(Sketcher.Constraint("Radius", 3, 2.5))
sketch4.addConstraint(Sketcher.Constraint("DistanceX", 2, 2, 2, 1, 1.0))
sketch4.addConstraint(Sketcher.Constraint("DistanceY", -1, 1, 0, 2, 5.0))
sketch4.addConstraint(Sketcher.Constraint("DistanceY", 1, 1, 1, 2, 2.25))
sketch4.addConstraint(Sketcher.Constraint("DistanceX", -1, 1, 0, 2, 4.776902))
sketch4.setExpression("Constraints[7]", "Params.sketch4_radius")
sketch4.setExpression("Constraints[8]", "Params.sketch4_width")
sketch4.setExpression("Constraints[10]", "Params.sketch4_height")
pocket2 = body.newObject("PartDesign::Pocket", "Pocket001")
pocket2.Profile = sketch4
pocket2.Type = "ThroughAll"

# Sketch on XY plane
sketch5 = body.newObject("Sketcher::SketchObject", "Sketch004")
sketch5.AttachmentSupport = (doc.getObject("XY_Plane"), [""])
sketch5.MapMode = "FlatFace"
sketch5.AttachmentOffset = App.Placement(Vector(0, 0, 7.25), App.Rotation())
sketch5.addGeometry(Part.LineSegment(Vector(-13.245432, 3.776902, 0), Vector(-13.157792, 4.776902, 0)), False)
sketch5.addGeometry(Part.LineSegment(Vector(-13.157792, 4.776902, 0), Vector(-12.659482, 4.776902, 0)), False)
sketch5.addGeometry(Part.LineSegment(Vector(-12.659482, 4.776902, 0), Vector(-12.082131, 3.776902, 0)), False)
sketch5.addGeometry(Part.LineSegment(Vector(-12.082131, 3.776902, 0), Vector(-13.245432, 3.776902, 0)), False)
sketch5.addGeometry(Part.LineSegment(Vector(-15.589379, 4.776902, 0), Vector(-14.395255, 4.776902, 0)), False)
sketch5.addGeometry(Part.LineSegment(Vector(-14.395255, 4.776902, 0), Vector(-14.627322, 3.776902, 0)), False)
sketch5.addGeometry(Part.LineSegment(Vector(-14.627322, 3.776902, 0), Vector(-16.000903, 3.776902, 0)), False)
sketch5.addGeometry(Part.LineSegment(Vector(-16.000903, 3.776902, 0), Vector(-15.589379, 4.776902, 0)), False)
sketch5.addGeometry(Part.LineSegment(Vector(-17.234482, 4.776902, 0), Vector(-16.509588, 4.776902, 0)), False)
sketch5.addGeometry(Part.LineSegment(Vector(-16.509588, 4.776902, 0), Vector(-17.128442, 3.776902, 0)), False)
sketch5.addGeometry(Part.LineSegment(Vector(-17.128442, 3.776902, 0), Vector(-17.811832, 3.776902, 0)), False)
sketch5.addGeometry(Part.LineSegment(Vector(-17.811832, 3.776902, 0), Vector(-17.234482, 4.776902, 0)), False)
sketch5.addConstraint(Sketcher.Constraint("Coincident", 0, 2, 1, 1))
sketch5.addConstraint(Sketcher.Constraint("Coincident", 1, 2, 2, 1))
sketch5.addConstraint(Sketcher.Constraint("Coincident", 2, 2, 3, 1))
sketch5.addConstraint(Sketcher.Constraint("Coincident", 3, 2, 0, 1))
sketch5.addConstraint(Sketcher.Constraint("Coincident", 4, 2, 5, 1))
sketch5.addConstraint(Sketcher.Constraint("Coincident", 5, 2, 6, 1))
sketch5.addConstraint(Sketcher.Constraint("Coincident", 6, 2, 7, 1))
sketch5.addConstraint(Sketcher.Constraint("Coincident", 7, 2, 4, 1))
sketch5.addConstraint(Sketcher.Constraint("Coincident", 8, 2, 9, 1))
sketch5.addConstraint(Sketcher.Constraint("Coincident", 9, 2, 10, 1))
sketch5.addConstraint(Sketcher.Constraint("Coincident", 10, 2, 11, 1))
sketch5.addConstraint(Sketcher.Constraint("Coincident", 11, 2, 8, 1))
sketch5.addConstraint(Sketcher.Constraint("Horizontal", 1))
sketch5.addConstraint(Sketcher.Constraint("Horizontal", 3))
sketch5.addConstraint(Sketcher.Constraint("Horizontal", 4))
sketch5.addConstraint(Sketcher.Constraint("Horizontal", 6))
sketch5.addConstraint(Sketcher.Constraint("Horizontal", 8))
sketch5.addConstraint(Sketcher.Constraint("Horizontal", 10))
sketch5.addConstraint(Sketcher.Constraint("Horizontal", 1, 2, 4, 2))
sketch5.addConstraint(Sketcher.Constraint("Horizontal", 3, 2, 5, 2))
sketch5.addConstraint(Sketcher.Constraint("Horizontal", 7, 2, 8, 2))
sketch5.addConstraint(Sketcher.Constraint("Horizontal", 6, 2, 9, 2))
sketch5.addConstraint(Sketcher.Constraint("Equal", 2, 11))
sketch5.addConstraint(Sketcher.Constraint("Angle", 2, Q("-60 deg")))
sketch5.addConstraint(Sketcher.Constraint("DistanceY", 2, 2, 1, 2, 1.0))
sketch5.addConstraint(Sketcher.Constraint("Distance", 9, 1.176002))
sketch5.addConstraint(Sketcher.Constraint("DistanceX", 3, 2, 3, 1, 1.163301))
sketch5.addConstraint(Sketcher.Constraint("DistanceX", 1, 1, 1, 2, 0.49831))
sketch5.addConstraint(Sketcher.Constraint("DistanceX", 6, 2, 6, 1, 1.373581))
sketch5.addConstraint(Sketcher.Constraint("DistanceX", 10, 2, 10, 1, 0.68339))
sketch5.addConstraint(Sketcher.Constraint("DistanceY", -1, 1, 0, 2, 4.776902))
sketch5.addConstraint(Sketcher.Constraint("DistanceX", 4, 1, 4, 2, 1.194124))
sketch5.addConstraint(Sketcher.Constraint("DistanceX", 0, 2, -1, 1, 13.157792))
sketch5.addConstraint(Sketcher.Constraint("DistanceX", 7, 2, -1, 1, 15.589379))
sketch5.addConstraint(Sketcher.Constraint("DistanceX", 8, 2, -1, 1, 16.509588))
sketch5.addConstraint(Sketcher.Constraint("DistanceX", 5, 2, 3, 2, 1.38189))
pad3 = body.newObject("PartDesign::Pad", "Pad002")
pad3.Profile = sketch5
pad3.setExpression("Length", "Params.pad3_length")
pad3.Reversed = True

# Sketch on XY plane
sketch6 = body.newObject("Sketcher::SketchObject", "Sketch005")
sketch6.AttachmentSupport = (doc.getObject("XY_Plane"), [""])
sketch6.MapMode = "FlatFace"
sketch6.AttachmentOffset = App.Placement(Vector(0, 0, 6.75), App.Rotation())
sketch6.addGeometry(Part.LineSegment(Vector(-17.811832, 3.776902, 0), Vector(-17.234482, 4.776902, 0)), False)
sketch6.addGeometry(Part.LineSegment(Vector(-17.234482, 4.776902, 0), Vector(-12.659482, 4.776902, 0)), False)
sketch6.addGeometry(Part.LineSegment(Vector(-12.659482, 4.776902, 0), Vector(-12.082131, 3.776902, 0)), False)
sketch6.addGeometry(Part.LineSegment(Vector(-12.082131, 3.776902, 0), Vector(-17.811832, 3.776902, 0)), False)
sketch6.addConstraint(Sketcher.Constraint("Coincident", 0, 2, 1, 1))
sketch6.addConstraint(Sketcher.Constraint("Coincident", 1, 2, 2, 1))
sketch6.addConstraint(Sketcher.Constraint("Coincident", 2, 2, 3, 1))
sketch6.addConstraint(Sketcher.Constraint("Coincident", 3, 2, 0, 1))
sketch6.addConstraint(Sketcher.Constraint("Horizontal", 1))
sketch6.addConstraint(Sketcher.Constraint("Horizontal", 3))
sketch6.addConstraint(Sketcher.Constraint("Equal", 0, 2))
sketch6.addConstraint(Sketcher.Constraint("Angle", 0, Q("60 deg")))
sketch6.addConstraint(Sketcher.Constraint("DistanceY", 2, 2, 1, 2, 1.0))
sketch6.addConstraint(Sketcher.Constraint("DistanceX", 1, 1, 1, 2, 4.575))
sketch6.addConstraint(Sketcher.Constraint("DistanceY", -1, 1, 0, 2, 4.776902))
sketch6.addConstraint(Sketcher.Constraint("DistanceX", 0, 2, -1, 1, 17.234482))
pad4 = body.newObject("PartDesign::Pad", "Pad003")
pad4.Profile = sketch6
pad4.setExpression("Length", "Params.pad4_length")
pad4.Reversed = True
pad4.setExpression("TaperAngle", "Params.pad4_taper")
doc.recompute()

fillet3 = body.newObject("PartDesign::Fillet", "Fillet002")
fillet3.Base = (pad4, edges_at(pad4, [
    (-20.623, 0.815, 2),
    (-19.013, -3.783, 2),
    (-14.947, -5.005, 2),
    (-9.906, -2.095, 2),
    (-9.906, 3.725, 2),
    (-14.947, 6.635, 2),
    (-19.013, 5.412, 2),
]))
fillet3.setExpression("Radius", "Params.fillet3_radius")

doc.recompute()
